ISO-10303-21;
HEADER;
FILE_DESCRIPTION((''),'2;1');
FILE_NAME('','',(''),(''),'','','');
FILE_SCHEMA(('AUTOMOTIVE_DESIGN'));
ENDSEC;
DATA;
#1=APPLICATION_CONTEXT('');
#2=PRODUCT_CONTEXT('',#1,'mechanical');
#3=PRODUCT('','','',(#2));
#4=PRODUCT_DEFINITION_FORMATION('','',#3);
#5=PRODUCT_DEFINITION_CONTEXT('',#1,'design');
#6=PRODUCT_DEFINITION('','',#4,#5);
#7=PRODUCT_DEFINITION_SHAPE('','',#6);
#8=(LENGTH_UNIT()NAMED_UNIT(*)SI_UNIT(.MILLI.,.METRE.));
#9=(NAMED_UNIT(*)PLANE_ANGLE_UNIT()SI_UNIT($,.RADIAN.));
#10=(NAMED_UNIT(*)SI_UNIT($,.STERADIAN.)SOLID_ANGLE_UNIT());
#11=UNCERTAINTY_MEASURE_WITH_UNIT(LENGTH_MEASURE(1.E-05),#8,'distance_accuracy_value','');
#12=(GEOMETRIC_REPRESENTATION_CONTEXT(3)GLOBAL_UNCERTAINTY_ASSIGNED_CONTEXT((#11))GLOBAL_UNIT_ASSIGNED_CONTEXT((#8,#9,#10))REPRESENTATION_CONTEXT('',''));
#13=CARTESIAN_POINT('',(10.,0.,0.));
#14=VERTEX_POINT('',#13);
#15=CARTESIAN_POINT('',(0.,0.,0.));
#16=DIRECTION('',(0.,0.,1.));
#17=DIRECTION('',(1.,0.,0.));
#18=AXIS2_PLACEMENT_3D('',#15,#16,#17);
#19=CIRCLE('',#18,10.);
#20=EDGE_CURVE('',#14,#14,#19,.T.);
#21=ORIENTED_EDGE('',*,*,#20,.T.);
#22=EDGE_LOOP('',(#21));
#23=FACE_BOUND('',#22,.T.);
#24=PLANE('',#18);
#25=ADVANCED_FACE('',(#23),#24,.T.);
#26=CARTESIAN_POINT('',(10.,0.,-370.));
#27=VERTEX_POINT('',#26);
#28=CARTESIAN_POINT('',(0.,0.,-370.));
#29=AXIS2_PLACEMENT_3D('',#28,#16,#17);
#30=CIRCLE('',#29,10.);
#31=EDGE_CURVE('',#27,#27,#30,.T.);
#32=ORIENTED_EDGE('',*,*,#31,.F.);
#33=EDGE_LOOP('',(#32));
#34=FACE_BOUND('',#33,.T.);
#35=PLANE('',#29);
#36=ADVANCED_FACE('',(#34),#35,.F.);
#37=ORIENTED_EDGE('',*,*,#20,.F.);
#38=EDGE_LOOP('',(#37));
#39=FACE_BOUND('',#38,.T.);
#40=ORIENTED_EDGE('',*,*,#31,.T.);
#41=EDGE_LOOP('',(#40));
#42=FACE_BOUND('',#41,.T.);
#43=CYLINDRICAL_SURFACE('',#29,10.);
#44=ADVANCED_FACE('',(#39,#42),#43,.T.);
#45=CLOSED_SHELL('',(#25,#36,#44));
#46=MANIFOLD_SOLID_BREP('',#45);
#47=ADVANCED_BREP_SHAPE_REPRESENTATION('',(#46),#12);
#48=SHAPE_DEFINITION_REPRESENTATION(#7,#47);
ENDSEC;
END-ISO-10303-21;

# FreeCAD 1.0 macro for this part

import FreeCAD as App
import Part
import Sketcher

V = App.Vector

doc = App.newDocument("Part")
body = doc.addObject("PartDesign::Body", "Body")

# Sketch on XY plane
sketch1 = doc.addObject("Sketcher::SketchObject", "Sketch")
body.addObject(sketch1)
sketch1.AttachmentSupport = (doc.XY_Plane, [""])
sketch1.MapMode = "FlatFace"
sketch1.addGeometry(Part.Circle(V(0, 0, 0), V(0, 0, 1), 10), False)
sketch1.addConstraint([
    Sketcher.Constraint("Coincident", 0, 3, -1, 1),
    Sketcher.Constraint("Diameter", 0, 20.0),
])
pad1 = doc.addObject("PartDesign::Pad", "Pad")
body.addObject(pad1)
pad1.Profile = sketch1
pad1.Length = 370
pad1.Reversed = True

doc.recompute()
